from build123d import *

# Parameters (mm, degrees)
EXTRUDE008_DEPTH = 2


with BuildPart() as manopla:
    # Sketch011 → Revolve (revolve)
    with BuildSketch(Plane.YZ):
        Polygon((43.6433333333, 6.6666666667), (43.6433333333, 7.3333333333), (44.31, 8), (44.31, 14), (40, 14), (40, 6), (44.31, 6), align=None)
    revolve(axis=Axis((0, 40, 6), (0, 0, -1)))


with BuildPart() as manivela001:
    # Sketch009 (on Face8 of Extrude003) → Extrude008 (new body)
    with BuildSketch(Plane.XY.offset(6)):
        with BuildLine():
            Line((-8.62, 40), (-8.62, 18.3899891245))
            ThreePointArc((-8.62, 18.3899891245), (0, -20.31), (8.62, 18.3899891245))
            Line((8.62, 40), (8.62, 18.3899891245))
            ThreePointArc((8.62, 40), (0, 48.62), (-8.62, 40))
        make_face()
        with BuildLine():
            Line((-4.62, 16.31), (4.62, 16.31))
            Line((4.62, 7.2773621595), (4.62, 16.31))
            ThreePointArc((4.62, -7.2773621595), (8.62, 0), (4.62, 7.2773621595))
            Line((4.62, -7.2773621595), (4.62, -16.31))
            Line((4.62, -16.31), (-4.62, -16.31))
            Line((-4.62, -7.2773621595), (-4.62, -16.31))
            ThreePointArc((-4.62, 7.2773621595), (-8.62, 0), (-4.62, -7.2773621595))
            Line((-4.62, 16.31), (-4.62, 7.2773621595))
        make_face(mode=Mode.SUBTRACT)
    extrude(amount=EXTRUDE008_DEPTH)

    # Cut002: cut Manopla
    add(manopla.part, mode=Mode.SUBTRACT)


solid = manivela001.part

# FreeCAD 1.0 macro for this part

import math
import FreeCAD as App
import Part
import Sketcher

V = App.Vector
Q = App.Units.Quantity


def add_polygon(sketch, points):
    """Adds a closed chain of lines whose ends are joined by coincident constraints."""
    first, n = sketch.GeometryCount, len(points)
    for a, b in zip(points, points[1:] + points[:1]):
        sketch.addGeometry(Part.LineSegment(App.Vector(*a, 0), App.Vector(*b, 0)), False)
    for i in range(n):
        sketch.addConstraint(Sketcher.Constraint("Coincident", first + i, 2, first + (i + 1) % n, 1))

doc = App.newDocument("Part")
body = doc.addObject("PartDesign::Body", "Body")

sketch1 = body.newObject("Sketcher::SketchObject", "Sketch")
sketch1.AttachmentSupport = (doc.getObject("YZ_Plane"), [""])
sketch1.MapMode = "FlatFace"
add_polygon(sketch1, [(43.6, 6.7), (43.6, 7.3), (44.3, 8), (44.3, 14), (40, 14), (40, 6), (44.3, 6)])
sketch1.addGeometry(Part.LineSegment(V(40, 14, 0), V(40, 6, 0)), True)
sketch1.addConstraint([
    Sketcher.Constraint("Vertical", 0),
    Sketcher.Constraint("Vertical", 2),
    Sketcher.Constraint("Horizontal", 3),
    Sketcher.Constraint("Vertical", 4),
    Sketcher.Constraint("Horizontal", 5),
    Sketcher.Constraint("Vertical", 7),
    Sketcher.Constraint("Coincident", 7, 1, 3, 2),
    Sketcher.Constraint("Perpendicular", 1, 6),
    Sketcher.Constraint("Horizontal", 5, 2, 7, 2),
    Sketcher.Constraint("Vertical", 2, 2, 5, 2),
    Sketcher.Constraint("Equal", 1, 6),
    Sketcher.Constraint("DistanceY", 2, 1, 2, 2, Q("6 mm")),
    Sketcher.Constraint("DistanceY", 4, 2, 4, 1, Q("8 mm")),
    Sketcher.Constraint("DistanceY", -1, 1, 1, 2, Q("8 mm")),
    Sketcher.Constraint("DistanceX", -1, 1, 3, 2, Q("40 mm")),
    Sketcher.Constraint("DistanceX", 3, 2, 3, 1, Q("4.31 mm")),
    Sketcher.Constraint("Distance", 1, Q("0.942809 mm")),
])
revolution = body.newObject("PartDesign::Revolution", "Revolution")
revolution.Profile = sketch1
revolution.ReferenceAxis = (sketch1, ["Axis0"])
revolution.Angle = 360
body2 = doc.addObject("PartDesign::Body", "Body001")

sketch2 = body2.newObject("Sketcher::SketchObject", "Sketch001")
sketch2.AttachmentSupport = (doc.getObject("XY_Plane001"), [""])
sketch2.MapMode = "FlatFace"
sketch2.AttachmentOffset = App.Placement(V(0, 0, 6), App.Rotation())
sketch2.addGeometry([
    Part.LineSegment(V(-9, 40, 0), V(-9, 18, 0)),
    Part.ArcOfCircle(Part.Circle(V(0, 0, 0), V(0, 0, 1), 20), math.radians(115), math.radians(425)),
    Part.LineSegment(V(9, 18, 0), V(9, 40, 0)),
    Part.ArcOfCircle(Part.Circle(V(0, 40, 0), V(0, 0, 1), 9), math.radians(0), math.radians(180)),
    Part.LineSegment(V(-5, 7, 0), V(-5, 16, 0)),
    Part.LineSegment(V(-5, 16, 0), V(5, 16, 0)),
    Part.LineSegment(V(5, 16, 0), V(5, 7, 0)),
    Part.ArcOfCircle(Part.Circle(V(0, 0, 0), V(0, 0, 1), 9), math.radians(-58), math.radians(58)),
    Part.LineSegment(V(5, -7, 0), V(5, -16, 0)),
    Part.LineSegment(V(5, -16, 0), V(-5, -16, 0)),
    Part.LineSegment(V(-5, -16, 0), V(-5, -7, 0)),
    Part.ArcOfCircle(Part.Circle(V(0, 0, 0), V(0, 0, 1), 9), math.radians(122), math.radians(238)),
], False)
sketch2.addConstraint([
    Sketcher.Constraint("Coincident", 0, 2, 1, 1),
    Sketcher.Constraint("Coincident", 1, 2, 2, 1),
    Sketcher.Constraint("Tangent", 2, 2, 3, 1),
    Sketcher.Constraint("Tangent", 3, 2, 0, 1),
    Sketcher.Constraint("Coincident", 4, 2, 5, 1),
    Sketcher.Constraint("Coincident", 5, 2, 6, 1),
    Sketcher.Constraint("Coincident", 6, 2, 7, 2),
    Sketcher.Constraint("Coincident", 7, 1, 8, 1),
    Sketcher.Constraint("Coincident", 8, 2, 9, 1),
    Sketcher.Constraint("Coincident", 9, 2, 10, 1),
    Sketcher.Constraint("Coincident", 10, 2, 11, 2),
    Sketcher.Constraint("Coincident", 11, 1, 4, 1),
    Sketcher.Constraint("Vertical", 0),
    Sketcher.Constraint("Vertical", 2),
    Sketcher.Constraint("Vertical", 4),
    Sketcher.Constraint("Horizontal", 5),
    Sketcher.Constraint("Vertical", 6),
    Sketcher.Constraint("Vertical", 8),
    Sketcher.Constraint("Horizontal", 9),
    Sketcher.Constraint("Vertical", 10),
    Sketcher.Constraint("Coincident", 1, 3, -1, 1),
    Sketcher.Constraint("Coincident", 7, 3, -1, 1),
    Sketcher.Constraint("Coincident", 11, 3, -1, 1),
    Sketcher.Constraint("Equal", 3, 7),
    Sketcher.Constraint("Equal", 7, 11),
    Sketcher.Constraint("Symmetric", 4, 2, 8, 2, -1, 1),
    Sketcher.Constraint("PointOnObject", 3, 3, -2),
    Sketcher.Constraint("Horizontal", 7, 1, 10, 2),
    Sketcher.Constraint("Horizontal", 6, 2, 11, 1),
    Sketcher.Constraint("Radius", 1, Q("20.31 mm")),
    Sketcher.Constraint("Radius", 3, Q("8.62 mm")),
    Sketcher.Constraint("DistanceY", -1, 1, 3, 3, Q("40 mm")),
    Sketcher.Constraint("DistanceX", 0, 2, 4, 2, Q("4 mm")),
    Sketcher.Constraint("DistanceY", -1, 1, 4, 2, Q("16.31 mm")),
])
pad1 = body2.newObject("PartDesign::Pad", "Pad")
pad1.Profile = sketch2
pad1.Length = 2
doc.recompute()

boolean = body2.newObject("PartDesign::Boolean", "Boolean")
boolean.Type = "Cut"
boolean.addObjects([body])

doc.recompute()
